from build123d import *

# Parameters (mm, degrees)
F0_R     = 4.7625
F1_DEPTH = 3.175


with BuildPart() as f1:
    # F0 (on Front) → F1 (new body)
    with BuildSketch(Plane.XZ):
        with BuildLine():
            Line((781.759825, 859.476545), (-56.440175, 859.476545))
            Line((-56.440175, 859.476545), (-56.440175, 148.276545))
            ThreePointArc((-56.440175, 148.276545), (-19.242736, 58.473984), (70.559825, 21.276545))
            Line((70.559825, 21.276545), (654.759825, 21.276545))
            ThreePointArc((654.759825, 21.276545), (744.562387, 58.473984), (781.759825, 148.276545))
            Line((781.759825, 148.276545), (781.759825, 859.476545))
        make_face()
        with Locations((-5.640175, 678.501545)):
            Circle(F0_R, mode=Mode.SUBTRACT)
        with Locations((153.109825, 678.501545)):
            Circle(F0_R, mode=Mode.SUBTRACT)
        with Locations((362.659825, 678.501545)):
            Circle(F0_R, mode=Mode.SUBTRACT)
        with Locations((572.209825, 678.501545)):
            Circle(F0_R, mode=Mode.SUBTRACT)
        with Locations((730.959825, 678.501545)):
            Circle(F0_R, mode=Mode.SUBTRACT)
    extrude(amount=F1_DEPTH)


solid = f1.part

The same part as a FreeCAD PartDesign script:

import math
import FreeCAD as App
import Part
import Sketcher
from FreeCAD import Vector
Q = App.Units.Quantity

doc = App.newDocument("Part")
params = doc.addObject("Spreadsheet::Sheet", "Params")
for row, (alias, value) in enumerate([
    ("sketch1_radius", "5 in"),
    ("sketch1_width", "33 in"),
    ("sketch1_height", "28 in"),
    ("sketch1_diameter", "0.375 in"),
    ("pad1_length", "0.125 in"),
], start=1):
    params.set(f"A{row}", alias)
    params.set(f"B{row}", "=" + value)
    params.setAlias(f"B{row}", alias)

body = doc.addObject("PartDesign::Body", "Body")

# Sketch on XZ plane
sketch1 = doc.addObject("Sketcher::SketchObject", "Sketch")
body.addObject(sketch1)
sketch1.AttachmentSupport = (doc.XZ_Plane, [""])
sketch1.MapMode = "FlatFace"
sketch1.addGeometry(Part.LineSegment(Vector(781.8, 859.5, 0), Vector(-56.4, 859.5, 0)), False)
sketch1.addGeometry(Part.LineSegment(Vector(-56.4, 859.5, 0), Vector(-56.4, 148.3, 0)), False)
sketch1.addGeometry(Part.ArcOfCircle(Part.Circle(Vector(70.6, 148.3, 0), Vector(0, 0, 1), 127), math.radians(-180), math.radians(-90)), False)
sketch1.addGeometry(Part.LineSegment(Vector(70.6, 21.3, 0), Vector(654.8, 21.3, 0)), False)
sketch1.addGeometry(Part.ArcOfCircle(Part.Circle(Vector(654.8, 148.3, 0), Vector(0, 0, 1), 127), math.radians(-90), math.radians(0)), False)
sketch1.addGeometry(Part.LineSegment(Vector(781.8, 148.3, 0), Vector(781.8, 859.5, 0)), False)
sketch1.addGeometry(Part.Circle(Vector(-5.6, 678.5, 0), Vector(0, 0, 1), 4.8), False)
sketch1.addGeometry(Part.Circle(Vector(153.1, 678.5, 0), Vector(0, 0, 1), 4.8), False)
sketch1.addGeometry(Part.Circle(Vector(362.7, 678.5, 0), Vector(0, 0, 1), 4.8), False)
sketch1.addGeometry(Part.Circle(Vector(572.2, 678.5, 0), Vector(0, 0, 1), 4.8), False)
sketch1.addGeometry(Part.Circle(Vector(731, 678.5, 0), Vector(0, 0, 1), 4.8), False)
sketch1.addConstraint(Sketcher.Constraint("Coincident", 0, 2, 1, 1))
sketch1.addConstraint(Sketcher.Constraint("Tangent", 1, 2, 2, 1))
sketch1.addConstraint(Sketcher.Constraint("Tangent", 2, 2, 3, 1))
sketch1.addConstraint(Sketcher.Constraint("Tangent", 3, 2, 4, 1))
sketch1.addConstraint(Sketcher.Constraint("Tangent", 4, 2, 5, 1))
sketch1.addConstraint(Sketcher.Constraint("Coincident", 5, 2, 0, 1))
sketch1.addConstraint(Sketcher.Constraint("Horizontal", 0))
sketch1.addConstraint(Sketcher.Constraint("Vertical", 1))
sketch1.addConstraint(Sketcher.Constraint("Horizontal", 3))
sketch1.addConstraint(Sketcher.Constraint("Vertical", 5))
sketch1.addConstraint(Sketcher.Constraint("Equal", 2, 4))
sketch1.addConstraint(Sketcher.Constraint("Equal", 6, 7))
sketch1.addConstraint(Sketcher.Constraint("Equal", 7, 8))
sketch1.addConstraint(Sketcher.Constraint("Equal", 8, 9))
sketch1.addConstraint(Sketcher.Constraint("Equal", 9, 10))
sketch1.addConstraint(Sketcher.Constraint("Horizontal", 6, 3, 7, 3))
sketch1.addConstraint(Sketcher.Constraint("Horizontal", 7, 3, 8, 3))
sketch1.addConstraint(Sketcher.Constraint("Horizontal", 8, 3, 9, 3))
sketch1.addConstraint(Sketcher.Constraint("Horizontal", 9, 3, 10, 3))
sketch1.addConstraint(Sketcher.Constraint("Radius", 2, Q("5 in")))
sketch1.addConstraint(Sketcher.Constraint("DistanceX", 0, 2, 0, 1, Q("33 in")))
sketch1.addConstraint(Sketcher.Constraint("DistanceY", 1, 2, 1, 1, Q("28 in")))
sketch1.addConstraint(Sketcher.Constraint("Diameter", 6, Q("0.375 in")))
sketch1.addConstraint(Sketcher.Constraint("DistanceX", 6, 3, 2, 3, Q("3 in")))
sketch1.addConstraint(Sketcher.Constraint("DistanceX", 4, 3, 10, 3, Q("3 in")))
sketch1.addConstraint(Sketcher.Constraint("DistanceX", 6, 3, 8, 3, Q("14.5 in")))
sketch1.addConstraint(Sketcher.Constraint("DistanceX", 7, 3, 9, 3, Q("16.5 in")))
sketch1.addConstraint(Sketcher.Constraint("DistanceX", 6, 3, 7, 3, Q("6.25 in")))
sketch1.addConstraint(Sketcher.Constraint("DistanceY", 2, 3, 6, 3, Q("20.875 in")))
sketch1.addConstraint(Sketcher.Constraint("DistanceX", -1, 1, 2, 3, Q("70.559826 mm")))
sketch1.addConstraint(Sketcher.Constraint("DistanceY", -1, 1, 2, 3, Q("148.276546 mm")))
sketch1.setExpression("Constraints[19]", "Params.sketch1_radius")
sketch1.setExpression("Constraints[20]", "Params.sketch1_width")
sketch1.setExpression("Constraints[21]", "Params.sketch1_height")
sketch1.setExpression("Constraints[22]", "Params.sketch1_diameter")
pad1 = doc.addObject("PartDesign::Pad", "Pad")
body.addObject(pad1)
pad1.Profile = sketch1
pad1.setExpression("Length", "Params.pad1_length")

doc.recompute()
